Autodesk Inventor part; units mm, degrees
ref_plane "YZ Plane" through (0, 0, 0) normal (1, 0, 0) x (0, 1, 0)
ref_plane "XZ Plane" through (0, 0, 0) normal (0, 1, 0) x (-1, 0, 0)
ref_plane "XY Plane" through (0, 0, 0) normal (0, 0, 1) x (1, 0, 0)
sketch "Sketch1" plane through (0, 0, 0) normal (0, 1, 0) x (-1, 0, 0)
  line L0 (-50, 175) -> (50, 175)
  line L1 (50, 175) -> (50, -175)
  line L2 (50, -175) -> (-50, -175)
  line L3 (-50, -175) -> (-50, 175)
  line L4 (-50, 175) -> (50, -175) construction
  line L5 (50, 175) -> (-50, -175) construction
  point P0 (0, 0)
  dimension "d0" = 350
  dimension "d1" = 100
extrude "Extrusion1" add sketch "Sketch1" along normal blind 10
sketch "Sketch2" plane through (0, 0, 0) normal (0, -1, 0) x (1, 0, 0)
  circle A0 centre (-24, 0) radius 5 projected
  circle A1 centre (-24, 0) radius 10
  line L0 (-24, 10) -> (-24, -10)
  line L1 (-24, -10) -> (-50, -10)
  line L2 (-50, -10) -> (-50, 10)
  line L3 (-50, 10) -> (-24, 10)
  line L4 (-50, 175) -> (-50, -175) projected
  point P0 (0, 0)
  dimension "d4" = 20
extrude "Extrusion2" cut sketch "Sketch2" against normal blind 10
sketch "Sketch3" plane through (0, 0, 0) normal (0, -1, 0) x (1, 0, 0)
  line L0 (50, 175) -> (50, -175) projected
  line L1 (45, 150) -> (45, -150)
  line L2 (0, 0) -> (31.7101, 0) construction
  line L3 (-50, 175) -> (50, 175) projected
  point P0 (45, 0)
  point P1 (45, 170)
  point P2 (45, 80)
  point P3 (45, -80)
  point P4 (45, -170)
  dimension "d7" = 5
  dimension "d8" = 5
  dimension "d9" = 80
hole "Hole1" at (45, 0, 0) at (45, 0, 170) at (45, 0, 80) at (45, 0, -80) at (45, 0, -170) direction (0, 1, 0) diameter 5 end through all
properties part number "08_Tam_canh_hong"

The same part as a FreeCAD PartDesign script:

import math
import FreeCAD as App
import Part
import Sketcher

V = App.Vector
Q = App.Units.Quantity

doc = App.newDocument("Part")
body = doc.addObject("PartDesign::Body", "Body")

sketch1 = body.newObject("Sketcher::SketchObject", "Sketch")
sketch1.AttachmentSupport = (doc.getObject("XZ_Plane"), [""])
sketch1.MapMode = "FlatFace"
sketch1.addGeometry([
    Part.LineSegment(V(-50, 175, 0), V(50, 175, 0)),
    Part.LineSegment(V(50, 175, 0), V(50, -175, 0)),
    Part.LineSegment(V(50, -175, 0), V(-50, -175, 0)),
    Part.LineSegment(V(-50, -175, 0), V(-50, 175, 0)),
], False)
sketch1.addConstraint([
    Sketcher.Constraint("Coincident", 0, 2, 1, 1),
    Sketcher.Constraint("Coincident", 1, 2, 2, 1),
    Sketcher.Constraint("Coincident", 2, 2, 3, 1),
    Sketcher.Constraint("Coincident", 3, 2, 0, 1),
    Sketcher.Constraint("Horizontal", 0),
    Sketcher.Constraint("Vertical", 1),
    Sketcher.Constraint("Horizontal", 2),
    Sketcher.Constraint("Vertical", 3),
    Sketcher.Constraint("Symmetric", 0, 2, 2, 2, -1, 1),
    Sketcher.Constraint("DistanceX", 0, 1, 0, 2, Q("100 mm")),
    Sketcher.Constraint("DistanceY", 1, 2, 1, 1, Q("350 mm")),
])
pad1 = body.newObject("PartDesign::Pad", "Pad")
pad1.Profile = sketch1
pad1.Length = 10
pad1.Reversed = True

sketch2 = body.newObject("Sketcher::SketchObject", "Sketch001")
sketch2.AttachmentSupport = (doc.getObject("XZ_Plane"), [""])
sketch2.MapMode = "FlatFace"
sketch2.addGeometry([
    Part.LineSegment(V(-24, 10, 0), V(-50, 10, 0)),
    Part.LineSegment(V(-50, 10, 0), V(-50, -10, 0)),
    Part.LineSegment(V(-50, -10, 0), V(-24, -10, 0)),
    Part.ArcOfCircle(Part.Circle(V(-24, 0, 0), V(0, 0, 1), 10), math.radians(-90), math.radians(90)),
], False)
sketch2.addConstraint([
    Sketcher.Constraint("Coincident", 0, 2, 1, 1),
    Sketcher.Constraint("Coincident", 1, 2, 2, 1),
    Sketcher.Constraint("Tangent", 2, 2, 3, 1),
    Sketcher.Constraint("Tangent", 3, 2, 0, 1),
    Sketcher.Constraint("Horizontal", 0),
    Sketcher.Constraint("Vertical", 1),
    Sketcher.Constraint("Horizontal", 2),
    Sketcher.Constraint("PointOnObject", 3, 3, -1),
    Sketcher.Constraint("Radius", 3, Q("10 mm")),
    Sketcher.Constraint("DistanceX", 0, 2, 0, 1, Q("26 mm")),
    Sketcher.Constraint("DistanceX", 3, 3, -1, 1, Q("24 mm")),
])
pocket1 = body.newObject("PartDesign::Pocket", "Pocket")
pocket1.Profile = sketch2
pocket1.Length = 10

sketch3 = body.newObject("Sketcher::SketchObject", "Sketch002")
sketch3.AttachmentSupport = (doc.getObject("XZ_Plane"), [""])
sketch3.MapMode = "FlatFace"
sketch3.addGeometry([
    Part.Circle(V(45, 0, 0), V(0, 0, 1), 2.5),
    Part.Circle(V(45, 170, 0), V(0, 0, 1), 2.5),
    Part.Circle(V(45, 80, 0), V(0, 0, 1), 2.5),
    Part.Circle(V(45, -80, 0), V(0, 0, 1), 2.5),
    Part.Circle(V(45, -170, 0), V(0, 0, 1), 2.5),
], False)
sketch3.addConstraint([
    Sketcher.Constraint("Equal", 0, 1),
    Sketcher.Constraint("Equal", 1, 2),
    Sketcher.Constraint("Equal", 2, 3),
    Sketcher.Constraint("Equal", 3, 4),
    Sketcher.Constraint("Symmetric", 2, 3, 3, 3, -1),
    Sketcher.Constraint("Symmetric", 1, 3, 4, 3, -1),
    Sketcher.Constraint("PointOnObject", 0, 3, -1),
    Sketcher.Constraint("Vertical", 0, 3, 1, 3),
    Sketcher.Constraint("Vertical", 1, 3, 2, 3),
    Sketcher.Constraint("Diameter", 0, Q("5 mm")),
    Sketcher.Constraint("DistanceX", -1, 1, 0, 3, Q("45 mm")),
    Sketcher.Constraint("DistanceY", -1, 1, 1, 3, Q("170 mm")),
    Sketcher.Constraint("DistanceY", -1, 1, 2, 3, Q("80 mm")),
])
doc.recompute()
hole = body.newObject("PartDesign::Hole", "Hole")
hole.Profile = sketch3
hole.ThreadType = "None"
hole.Diameter = 5
hole.DepthType = "ThroughAll"

doc.recompute()
